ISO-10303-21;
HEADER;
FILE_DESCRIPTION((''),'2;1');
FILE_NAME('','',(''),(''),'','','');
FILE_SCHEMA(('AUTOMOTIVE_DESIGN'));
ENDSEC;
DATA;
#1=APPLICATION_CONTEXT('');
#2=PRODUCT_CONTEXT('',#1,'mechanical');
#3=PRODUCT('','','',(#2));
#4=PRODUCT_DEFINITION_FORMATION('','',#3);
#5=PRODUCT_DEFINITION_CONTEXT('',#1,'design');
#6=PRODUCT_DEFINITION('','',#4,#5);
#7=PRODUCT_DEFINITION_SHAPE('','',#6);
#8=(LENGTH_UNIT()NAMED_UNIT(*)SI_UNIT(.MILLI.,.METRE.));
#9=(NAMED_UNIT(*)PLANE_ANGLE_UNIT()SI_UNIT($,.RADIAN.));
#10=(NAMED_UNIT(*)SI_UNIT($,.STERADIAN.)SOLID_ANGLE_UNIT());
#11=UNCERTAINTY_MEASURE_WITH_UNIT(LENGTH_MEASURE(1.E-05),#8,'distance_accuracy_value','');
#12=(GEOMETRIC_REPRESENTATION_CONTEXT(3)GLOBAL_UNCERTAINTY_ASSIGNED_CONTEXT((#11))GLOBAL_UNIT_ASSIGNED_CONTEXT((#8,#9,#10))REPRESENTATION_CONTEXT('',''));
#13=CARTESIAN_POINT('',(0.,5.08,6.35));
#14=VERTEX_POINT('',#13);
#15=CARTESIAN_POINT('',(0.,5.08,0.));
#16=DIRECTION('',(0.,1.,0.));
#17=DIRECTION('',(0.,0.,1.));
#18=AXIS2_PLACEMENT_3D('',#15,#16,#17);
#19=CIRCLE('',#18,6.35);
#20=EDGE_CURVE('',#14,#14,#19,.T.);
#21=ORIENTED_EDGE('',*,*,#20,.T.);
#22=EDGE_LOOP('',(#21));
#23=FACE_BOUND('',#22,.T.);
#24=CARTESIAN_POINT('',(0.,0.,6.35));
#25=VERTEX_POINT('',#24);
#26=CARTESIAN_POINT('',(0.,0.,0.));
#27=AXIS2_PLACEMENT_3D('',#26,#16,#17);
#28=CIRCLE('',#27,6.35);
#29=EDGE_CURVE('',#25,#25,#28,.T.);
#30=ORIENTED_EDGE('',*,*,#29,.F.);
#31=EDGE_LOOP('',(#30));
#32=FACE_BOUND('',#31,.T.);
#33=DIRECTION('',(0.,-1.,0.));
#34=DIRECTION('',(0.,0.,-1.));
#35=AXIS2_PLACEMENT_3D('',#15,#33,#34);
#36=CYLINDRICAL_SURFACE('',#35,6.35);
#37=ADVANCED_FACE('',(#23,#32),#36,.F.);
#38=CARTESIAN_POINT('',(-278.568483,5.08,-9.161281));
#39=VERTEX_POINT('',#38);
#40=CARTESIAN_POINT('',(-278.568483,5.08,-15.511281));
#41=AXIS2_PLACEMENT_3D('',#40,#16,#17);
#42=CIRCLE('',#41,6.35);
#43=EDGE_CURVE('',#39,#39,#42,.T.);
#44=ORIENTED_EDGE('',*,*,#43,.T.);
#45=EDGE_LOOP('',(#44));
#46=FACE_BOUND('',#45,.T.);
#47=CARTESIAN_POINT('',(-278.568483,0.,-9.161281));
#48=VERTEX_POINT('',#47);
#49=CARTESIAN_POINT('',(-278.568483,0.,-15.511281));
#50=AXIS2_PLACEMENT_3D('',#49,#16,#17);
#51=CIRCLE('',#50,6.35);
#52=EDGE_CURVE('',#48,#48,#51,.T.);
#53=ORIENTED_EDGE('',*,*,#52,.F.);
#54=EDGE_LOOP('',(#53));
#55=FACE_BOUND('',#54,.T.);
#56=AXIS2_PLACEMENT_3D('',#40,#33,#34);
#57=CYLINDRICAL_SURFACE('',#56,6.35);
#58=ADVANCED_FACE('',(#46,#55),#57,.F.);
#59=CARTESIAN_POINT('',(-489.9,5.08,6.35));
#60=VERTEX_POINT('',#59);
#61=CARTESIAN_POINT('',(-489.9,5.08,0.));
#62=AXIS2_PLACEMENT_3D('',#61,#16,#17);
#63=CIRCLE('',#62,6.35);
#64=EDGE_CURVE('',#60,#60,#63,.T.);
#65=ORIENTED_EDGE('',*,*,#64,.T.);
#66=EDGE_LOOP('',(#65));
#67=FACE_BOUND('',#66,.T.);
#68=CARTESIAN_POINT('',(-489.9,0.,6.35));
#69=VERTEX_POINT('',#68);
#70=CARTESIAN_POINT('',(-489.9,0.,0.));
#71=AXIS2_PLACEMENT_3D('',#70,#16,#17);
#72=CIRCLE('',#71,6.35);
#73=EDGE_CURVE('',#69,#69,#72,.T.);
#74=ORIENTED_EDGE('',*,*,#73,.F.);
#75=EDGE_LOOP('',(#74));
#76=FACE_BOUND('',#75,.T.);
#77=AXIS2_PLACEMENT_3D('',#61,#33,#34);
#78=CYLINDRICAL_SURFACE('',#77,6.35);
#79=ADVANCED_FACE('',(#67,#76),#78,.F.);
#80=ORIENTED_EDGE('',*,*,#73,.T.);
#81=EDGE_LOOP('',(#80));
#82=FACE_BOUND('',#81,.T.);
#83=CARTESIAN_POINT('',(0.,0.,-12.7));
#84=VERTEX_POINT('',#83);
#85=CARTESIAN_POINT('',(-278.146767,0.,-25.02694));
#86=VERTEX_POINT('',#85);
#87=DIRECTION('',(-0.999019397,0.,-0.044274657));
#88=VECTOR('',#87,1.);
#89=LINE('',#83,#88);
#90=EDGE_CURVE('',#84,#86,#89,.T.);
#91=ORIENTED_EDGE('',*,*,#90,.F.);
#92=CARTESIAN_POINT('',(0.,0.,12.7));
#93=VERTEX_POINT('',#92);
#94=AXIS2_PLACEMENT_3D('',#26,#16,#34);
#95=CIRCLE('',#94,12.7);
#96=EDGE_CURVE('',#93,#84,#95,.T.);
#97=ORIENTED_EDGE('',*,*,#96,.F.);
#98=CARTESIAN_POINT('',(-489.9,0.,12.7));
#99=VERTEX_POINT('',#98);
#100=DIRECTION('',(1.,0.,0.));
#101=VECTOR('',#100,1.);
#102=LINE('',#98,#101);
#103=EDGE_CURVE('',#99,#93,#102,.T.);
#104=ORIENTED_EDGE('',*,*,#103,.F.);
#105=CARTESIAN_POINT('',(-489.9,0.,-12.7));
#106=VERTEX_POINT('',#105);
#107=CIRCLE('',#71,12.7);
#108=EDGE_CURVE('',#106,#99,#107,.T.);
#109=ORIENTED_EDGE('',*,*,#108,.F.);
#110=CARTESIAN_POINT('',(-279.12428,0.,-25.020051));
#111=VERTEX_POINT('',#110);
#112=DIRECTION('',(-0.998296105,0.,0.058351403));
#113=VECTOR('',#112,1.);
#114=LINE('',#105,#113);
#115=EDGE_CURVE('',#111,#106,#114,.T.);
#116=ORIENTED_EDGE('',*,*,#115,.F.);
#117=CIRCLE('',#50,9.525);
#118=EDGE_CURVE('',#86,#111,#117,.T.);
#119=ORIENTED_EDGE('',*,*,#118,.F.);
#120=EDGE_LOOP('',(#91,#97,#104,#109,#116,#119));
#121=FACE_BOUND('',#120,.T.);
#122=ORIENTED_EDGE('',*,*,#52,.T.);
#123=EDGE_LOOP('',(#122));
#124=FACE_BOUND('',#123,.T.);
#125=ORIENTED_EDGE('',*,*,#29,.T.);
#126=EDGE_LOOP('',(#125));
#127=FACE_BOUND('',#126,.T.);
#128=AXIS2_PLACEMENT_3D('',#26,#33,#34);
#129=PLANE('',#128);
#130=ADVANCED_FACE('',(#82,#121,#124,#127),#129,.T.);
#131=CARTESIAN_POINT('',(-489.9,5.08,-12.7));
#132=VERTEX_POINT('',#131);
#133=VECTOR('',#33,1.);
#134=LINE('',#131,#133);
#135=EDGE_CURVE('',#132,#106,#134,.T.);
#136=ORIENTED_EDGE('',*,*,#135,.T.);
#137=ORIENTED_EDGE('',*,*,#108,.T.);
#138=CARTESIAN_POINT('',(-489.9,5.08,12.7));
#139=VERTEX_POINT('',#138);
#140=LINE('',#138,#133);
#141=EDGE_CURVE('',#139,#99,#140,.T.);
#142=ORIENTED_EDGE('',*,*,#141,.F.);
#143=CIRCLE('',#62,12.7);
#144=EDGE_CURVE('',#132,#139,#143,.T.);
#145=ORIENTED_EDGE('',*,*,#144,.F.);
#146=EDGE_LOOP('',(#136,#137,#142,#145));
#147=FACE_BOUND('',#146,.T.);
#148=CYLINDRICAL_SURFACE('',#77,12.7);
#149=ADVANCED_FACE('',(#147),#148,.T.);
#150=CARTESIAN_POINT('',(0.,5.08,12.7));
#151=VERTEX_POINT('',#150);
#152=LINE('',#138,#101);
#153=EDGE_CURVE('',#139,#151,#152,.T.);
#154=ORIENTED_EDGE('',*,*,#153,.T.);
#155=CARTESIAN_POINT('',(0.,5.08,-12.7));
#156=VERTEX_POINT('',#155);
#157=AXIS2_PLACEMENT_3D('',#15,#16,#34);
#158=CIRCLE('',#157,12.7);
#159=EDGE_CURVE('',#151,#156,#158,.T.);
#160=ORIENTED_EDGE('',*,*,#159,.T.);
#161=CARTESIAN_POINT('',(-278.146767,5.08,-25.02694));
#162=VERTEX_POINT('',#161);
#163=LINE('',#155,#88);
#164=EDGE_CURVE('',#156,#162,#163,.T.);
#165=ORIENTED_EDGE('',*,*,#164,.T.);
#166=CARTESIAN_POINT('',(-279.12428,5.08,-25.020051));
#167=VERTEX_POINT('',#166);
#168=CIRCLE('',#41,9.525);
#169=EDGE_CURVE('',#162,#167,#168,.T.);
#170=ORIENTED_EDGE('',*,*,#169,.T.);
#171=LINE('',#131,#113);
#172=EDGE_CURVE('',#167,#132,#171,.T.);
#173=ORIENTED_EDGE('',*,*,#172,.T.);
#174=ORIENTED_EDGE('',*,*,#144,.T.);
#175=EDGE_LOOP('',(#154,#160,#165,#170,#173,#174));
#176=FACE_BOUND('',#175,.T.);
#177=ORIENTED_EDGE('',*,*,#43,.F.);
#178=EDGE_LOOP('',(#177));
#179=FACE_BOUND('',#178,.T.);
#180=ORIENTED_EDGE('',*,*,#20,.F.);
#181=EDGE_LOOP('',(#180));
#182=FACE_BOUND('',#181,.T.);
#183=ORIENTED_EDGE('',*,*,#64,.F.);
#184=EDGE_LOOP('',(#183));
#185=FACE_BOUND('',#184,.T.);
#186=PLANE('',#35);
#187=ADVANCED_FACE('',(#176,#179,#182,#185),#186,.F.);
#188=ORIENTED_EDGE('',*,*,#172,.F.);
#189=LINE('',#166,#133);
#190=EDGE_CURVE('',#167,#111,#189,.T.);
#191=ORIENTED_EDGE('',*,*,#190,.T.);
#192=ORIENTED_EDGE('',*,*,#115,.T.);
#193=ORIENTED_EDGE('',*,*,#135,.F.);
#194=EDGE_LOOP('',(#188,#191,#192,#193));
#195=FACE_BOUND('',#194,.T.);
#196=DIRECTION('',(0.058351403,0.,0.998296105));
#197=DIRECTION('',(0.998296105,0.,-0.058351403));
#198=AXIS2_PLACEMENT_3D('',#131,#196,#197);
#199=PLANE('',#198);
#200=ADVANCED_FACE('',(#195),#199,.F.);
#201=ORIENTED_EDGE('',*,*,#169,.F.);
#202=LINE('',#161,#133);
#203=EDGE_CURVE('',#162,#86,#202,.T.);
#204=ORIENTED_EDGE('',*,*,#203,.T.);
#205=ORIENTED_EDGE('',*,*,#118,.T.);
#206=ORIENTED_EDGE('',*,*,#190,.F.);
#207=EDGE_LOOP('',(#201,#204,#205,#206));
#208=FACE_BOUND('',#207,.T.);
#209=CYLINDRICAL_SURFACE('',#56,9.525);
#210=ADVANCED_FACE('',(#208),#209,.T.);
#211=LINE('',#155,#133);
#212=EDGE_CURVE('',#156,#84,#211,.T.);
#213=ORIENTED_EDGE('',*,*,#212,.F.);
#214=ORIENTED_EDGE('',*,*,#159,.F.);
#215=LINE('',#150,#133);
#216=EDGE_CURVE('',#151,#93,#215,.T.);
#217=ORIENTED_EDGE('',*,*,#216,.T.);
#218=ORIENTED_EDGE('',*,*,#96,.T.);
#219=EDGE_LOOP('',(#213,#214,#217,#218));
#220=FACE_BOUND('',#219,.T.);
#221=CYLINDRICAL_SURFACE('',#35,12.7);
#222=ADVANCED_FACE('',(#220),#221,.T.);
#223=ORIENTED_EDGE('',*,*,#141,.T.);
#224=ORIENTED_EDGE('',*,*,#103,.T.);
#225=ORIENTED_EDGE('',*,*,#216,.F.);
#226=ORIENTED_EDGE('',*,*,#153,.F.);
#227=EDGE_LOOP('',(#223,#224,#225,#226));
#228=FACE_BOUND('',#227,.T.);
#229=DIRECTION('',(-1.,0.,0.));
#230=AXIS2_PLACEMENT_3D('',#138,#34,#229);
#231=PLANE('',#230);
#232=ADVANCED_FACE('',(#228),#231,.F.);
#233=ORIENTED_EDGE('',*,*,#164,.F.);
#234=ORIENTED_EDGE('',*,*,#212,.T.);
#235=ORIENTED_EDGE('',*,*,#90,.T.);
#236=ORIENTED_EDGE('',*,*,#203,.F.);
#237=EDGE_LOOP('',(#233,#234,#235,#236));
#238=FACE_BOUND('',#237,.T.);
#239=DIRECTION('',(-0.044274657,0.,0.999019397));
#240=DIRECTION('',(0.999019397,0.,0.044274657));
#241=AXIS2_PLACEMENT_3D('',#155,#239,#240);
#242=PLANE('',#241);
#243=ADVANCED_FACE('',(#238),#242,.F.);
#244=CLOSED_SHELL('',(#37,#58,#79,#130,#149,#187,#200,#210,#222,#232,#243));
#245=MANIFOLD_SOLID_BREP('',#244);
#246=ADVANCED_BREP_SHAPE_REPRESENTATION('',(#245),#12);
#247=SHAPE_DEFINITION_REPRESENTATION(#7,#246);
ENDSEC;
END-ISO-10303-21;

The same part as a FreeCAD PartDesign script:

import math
import FreeCAD as App
import Part
import Sketcher

V = App.Vector
Q = App.Units.Quantity

doc = App.newDocument("Part")
body = doc.addObject("PartDesign::Body", "Body")

sketch1 = body.newObject("Sketcher::SketchObject", "Sketch")
sketch1.AttachmentSupport = (doc.getObject("XZ_Plane"), [""])
sketch1.MapMode = "FlatFace"
sketch1.addGeometry([
    Part.LineSegment(V(-489.9, 12.7, 0), V(0, 12.7, 0)),
    Part.ArcOfCircle(Part.Circle(V(0, 0, 0), V(0, 0, 1), 12.7), math.radians(-90), math.radians(90)),
    Part.LineSegment(V(0, -12.7, 0), V(-278.1, -25, 0)),
    Part.ArcOfCircle(Part.Circle(V(-278.6, -15.5, 0), V(0, 0, 1), 9.5), math.radians(-93.35), math.radians(-87.46)),
    Part.LineSegment(V(-279.1, -25, 0), V(-489.9, -12.7, 0)),
    Part.ArcOfCircle(Part.Circle(V(-489.9, 0, 0), V(0, 0, 1), 12.7), math.radians(90), math.radians(270)),
    Part.Circle(V(-489.9, 0, 0), V(0, 0, 1), 6.3),
    Part.Circle(V(0, 0, 0), V(0, 0, 1), 6.3),
    Part.Circle(V(-278.6, -15.5, 0), V(0, 0, 1), 6.3),
], False)
sketch1.addConstraint([
    Sketcher.Constraint("Tangent", 0, 2, 1, 2),
    Sketcher.Constraint("Coincident", 1, 1, 2, 1),
    Sketcher.Constraint("Tangent", 2, 2, 3, 2),
    Sketcher.Constraint("Tangent", 3, 1, 4, 1),
    Sketcher.Constraint("Coincident", 4, 2, 5, 2),
    Sketcher.Constraint("Tangent", 5, 1, 0, 1),
    Sketcher.Constraint("Horizontal", 0),
    Sketcher.Constraint("Coincident", 1, 3, -1, 1),
    Sketcher.Constraint("Coincident", 7, 3, -1, 1),
    Sketcher.Constraint("Coincident", 6, 3, 5, 3),
    Sketcher.Constraint("Coincident", 8, 3, 3, 3),
    Sketcher.Constraint("Equal", 1, 5),
    Sketcher.Constraint("Equal", 6, 7),
    Sketcher.Constraint("Equal", 7, 8),
    Sketcher.Constraint("PointOnObject", 1, 1, -2),
    Sketcher.Constraint("Vertical", 6, 3, 4, 2),
    Sketcher.Constraint("Diameter", 6, Q("0.5 in")),
    Sketcher.Constraint("Radius", 1, Q("0.5 in")),
    Sketcher.Constraint("Radius", 3, Q("0.375 in")),
    Sketcher.Constraint("DistanceX", 0, 1, 0, 2, Q("489.9 mm")),
    Sketcher.Constraint("DistanceY", 3, 3, -1, 1, Q("15.51128 mm")),
    Sketcher.Constraint("DistanceX", 3, 1, -1, 1, Q("279.12428 mm")),
])
pad1 = body.newObject("PartDesign::Pad", "Pad")
pad1.Profile = sketch1
pad1.Length = Q("0.2 in")
pad1.Reversed = True

doc.recompute()
